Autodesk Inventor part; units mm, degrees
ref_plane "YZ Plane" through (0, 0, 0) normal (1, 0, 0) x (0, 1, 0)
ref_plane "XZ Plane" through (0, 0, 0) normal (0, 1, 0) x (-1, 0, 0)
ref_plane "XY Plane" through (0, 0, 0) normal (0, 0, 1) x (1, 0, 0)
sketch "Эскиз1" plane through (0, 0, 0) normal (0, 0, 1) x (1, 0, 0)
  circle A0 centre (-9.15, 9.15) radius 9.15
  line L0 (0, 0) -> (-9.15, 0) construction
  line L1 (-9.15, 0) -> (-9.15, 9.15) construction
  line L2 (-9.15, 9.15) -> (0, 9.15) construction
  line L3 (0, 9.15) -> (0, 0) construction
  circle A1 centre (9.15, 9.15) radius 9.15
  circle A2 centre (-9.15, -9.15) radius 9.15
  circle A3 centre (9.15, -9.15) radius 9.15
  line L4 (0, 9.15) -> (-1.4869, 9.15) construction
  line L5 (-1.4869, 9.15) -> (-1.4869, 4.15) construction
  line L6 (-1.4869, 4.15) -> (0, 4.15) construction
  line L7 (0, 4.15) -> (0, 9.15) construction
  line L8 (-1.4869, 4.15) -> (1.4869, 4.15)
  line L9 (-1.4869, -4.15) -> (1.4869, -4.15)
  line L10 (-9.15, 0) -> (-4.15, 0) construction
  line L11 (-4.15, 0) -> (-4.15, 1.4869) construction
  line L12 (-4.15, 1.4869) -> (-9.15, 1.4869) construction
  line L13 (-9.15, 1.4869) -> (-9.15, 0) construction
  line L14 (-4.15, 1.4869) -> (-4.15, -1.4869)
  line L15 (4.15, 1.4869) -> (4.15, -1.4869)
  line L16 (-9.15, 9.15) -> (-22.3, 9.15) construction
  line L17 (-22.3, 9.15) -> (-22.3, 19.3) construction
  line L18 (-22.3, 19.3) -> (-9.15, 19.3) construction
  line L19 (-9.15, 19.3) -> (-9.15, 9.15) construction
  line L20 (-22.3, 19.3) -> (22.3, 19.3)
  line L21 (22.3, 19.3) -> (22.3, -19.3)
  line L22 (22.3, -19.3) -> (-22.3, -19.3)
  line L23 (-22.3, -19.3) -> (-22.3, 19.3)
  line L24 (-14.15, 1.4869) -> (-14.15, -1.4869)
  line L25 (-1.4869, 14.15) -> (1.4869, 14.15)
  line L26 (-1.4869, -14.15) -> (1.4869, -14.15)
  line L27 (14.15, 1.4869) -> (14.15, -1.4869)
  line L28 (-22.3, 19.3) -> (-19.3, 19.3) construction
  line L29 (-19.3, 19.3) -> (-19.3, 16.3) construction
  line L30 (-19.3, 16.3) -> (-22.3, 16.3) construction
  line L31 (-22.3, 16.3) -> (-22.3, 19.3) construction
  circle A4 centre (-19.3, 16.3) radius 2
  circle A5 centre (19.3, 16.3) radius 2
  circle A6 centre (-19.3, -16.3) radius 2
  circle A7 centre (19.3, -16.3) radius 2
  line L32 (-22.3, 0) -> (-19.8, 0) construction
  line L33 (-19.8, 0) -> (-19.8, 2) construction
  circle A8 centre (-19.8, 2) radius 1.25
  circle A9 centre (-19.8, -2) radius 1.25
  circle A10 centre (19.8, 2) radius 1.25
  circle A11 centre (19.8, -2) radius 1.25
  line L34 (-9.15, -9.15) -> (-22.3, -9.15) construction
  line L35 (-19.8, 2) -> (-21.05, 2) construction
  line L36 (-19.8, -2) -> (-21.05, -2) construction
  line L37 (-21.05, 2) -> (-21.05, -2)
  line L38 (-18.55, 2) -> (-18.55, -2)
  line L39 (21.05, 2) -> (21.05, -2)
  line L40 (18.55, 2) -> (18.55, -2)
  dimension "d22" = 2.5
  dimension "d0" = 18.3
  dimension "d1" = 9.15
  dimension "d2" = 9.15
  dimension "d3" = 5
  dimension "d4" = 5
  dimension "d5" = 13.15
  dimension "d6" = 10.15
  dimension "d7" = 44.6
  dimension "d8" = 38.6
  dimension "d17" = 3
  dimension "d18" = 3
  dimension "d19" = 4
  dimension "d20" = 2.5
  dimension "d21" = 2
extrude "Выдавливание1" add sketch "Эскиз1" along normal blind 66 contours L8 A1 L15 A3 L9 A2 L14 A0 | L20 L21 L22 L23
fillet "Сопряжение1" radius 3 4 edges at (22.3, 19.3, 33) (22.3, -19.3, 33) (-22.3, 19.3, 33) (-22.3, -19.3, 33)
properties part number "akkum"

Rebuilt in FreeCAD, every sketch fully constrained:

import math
import FreeCAD as App
import Part
import Sketcher

V = App.Vector
Q = App.Units.Quantity


def edges_at(feature, points):
    """Names of the edges that pass closest to the given points."""
    edges = feature.Shape.Edges
    near = lambda p: min(range(len(edges)), key=lambda i: edges[i].distToShape(Part.Vertex(*p))[0])
    return sorted({f"Edge{near(p) + 1}" for p in points})

doc = App.newDocument("Part")
body = doc.addObject("PartDesign::Body", "Body")
body.AllowCompound = True

sketch1 = body.newObject("Sketcher::SketchObject", "Sketch")
sketch1.AttachmentSupport = (doc.getObject("XY_Plane"), [""])
sketch1.MapMode = "FlatFace"
sketch1.addGeometry([
    Part.LineSegment(V(1.4869, 4.15, 0), V(-1.4869, 4.15, 0)),
    Part.ArcOfCircle(Part.Circle(V(-9.15, 9.15, 0), V(0, 0, 1), 9.15), math.radians(-56.876458), math.radians(-33.123542)),
    Part.LineSegment(V(-4.15, 1.4869, 0), V(-4.15, -1.4869, 0)),
    Part.ArcOfCircle(Part.Circle(V(-9.15, -9.15, 0), V(0, 0, 1), 9.15), math.radians(33.123542), math.radians(56.876458)),
    Part.LineSegment(V(-1.4869, -4.15, 0), V(1.4869, -4.15, 0)),
    Part.ArcOfCircle(Part.Circle(V(9.15, -9.15, 0), V(0, 0, 1), 9.15), math.radians(123.123542), math.radians(146.876458)),
    Part.LineSegment(V(4.15, -1.4869, 0), V(4.15, 1.4869, 0)),
    Part.ArcOfCircle(Part.Circle(V(9.15, 9.15, 0), V(0, 0, 1), 9.15), math.radians(-146.876458), math.radians(-123.123542)),
    Part.LineSegment(V(22.3, 19.3, 0), V(-22.3, 19.3, 0)),
    Part.LineSegment(V(-22.3, 19.3, 0), V(-22.3, -19.3, 0)),
    Part.LineSegment(V(-22.3, -19.3, 0), V(22.3, -19.3, 0)),
    Part.LineSegment(V(22.3, -19.3, 0), V(22.3, 19.3, 0)),
    Part.Circle(V(-19.3, -16.3, 0), V(0, 0, 1), 2),
    Part.Circle(V(19.3, -16.3, 0), V(0, 0, 1), 2),
    Part.ArcOfCircle(Part.Circle(V(-19.8, 2, 0), V(0, 0, 1), 1.25), math.radians(0), math.radians(180)),
    Part.LineSegment(V(-18.55, 2, 0), V(-18.55, -2, 0)),
    Part.ArcOfCircle(Part.Circle(V(-19.8, -2, 0), V(0, 0, 1), 1.25), math.radians(180), math.radians(360)),
    Part.LineSegment(V(-21.05, -2, 0), V(-21.05, 2, 0)),
    Part.Circle(V(-19.3, 16.3, 0), V(0, 0, 1), 2),
    Part.ArcOfCircle(Part.Circle(V(-9.15, 9.15, 0), V(0, 0, 1), 9.15), math.radians(33.123542), math.radians(236.876458)),
    Part.LineSegment(V(-1.4869, 14.15, 0), V(1.4869, 14.15, 0)),
    Part.ArcOfCircle(Part.Circle(V(9.15, 9.15, 0), V(0, 0, 1), 9.15), math.radians(-56.876458), math.radians(146.876458)),
    Part.LineSegment(V(14.15, 1.4869, 0), V(14.15, -1.4869, 0)),
    Part.ArcOfCircle(Part.Circle(V(9.15, -9.15, 0), V(0, 0, 1), 9.15), math.radians(-146.876458), math.radians(56.876458)),
    Part.LineSegment(V(1.4869, -14.15, 0), V(-1.4869, -14.15, 0)),
    Part.ArcOfCircle(Part.Circle(V(-9.15, -9.15, 0), V(0, 0, 1), 9.15), math.radians(123.123542), math.radians(326.876458)),
    Part.LineSegment(V(-14.15, -1.4869, 0), V(-14.15, 1.4869, 0)),
    Part.ArcOfCircle(Part.Circle(V(19.8, 2, 0), V(0, 0, 1), 1.25), math.radians(0), math.radians(180)),
    Part.LineSegment(V(21.05, 2, 0), V(21.05, -2, 0)),
    Part.ArcOfCircle(Part.Circle(V(19.8, -2, 0), V(0, 0, 1), 1.25), math.radians(180), math.radians(360)),
    Part.LineSegment(V(18.55, -2, 0), V(18.55, 2, 0)),
    Part.Circle(V(19.3, 16.3, 0), V(0, 0, 1), 2),
], False)
sketch1.addConstraint([
    Sketcher.Constraint("Coincident", 0, 2, 1, 2),
    Sketcher.Constraint("Coincident", 1, 1, 2, 1),
    Sketcher.Constraint("Coincident", 2, 2, 3, 2),
    Sketcher.Constraint("Coincident", 3, 1, 4, 1),
    Sketcher.Constraint("Coincident", 4, 2, 5, 2),
    Sketcher.Constraint("Coincident", 5, 1, 6, 1),
    Sketcher.Constraint("Coincident", 6, 2, 7, 2),
    Sketcher.Constraint("Coincident", 7, 1, 0, 1),
    Sketcher.Constraint("Coincident", 8, 2, 9, 1),
    Sketcher.Constraint("Coincident", 9, 2, 10, 1),
    Sketcher.Constraint("Coincident", 10, 2, 11, 1),
    Sketcher.Constraint("Coincident", 11, 2, 8, 1),
    Sketcher.Constraint("Tangent", 14, 1, 15, 1),
    Sketcher.Constraint("Tangent", 15, 2, 16, 2),
    Sketcher.Constraint("Tangent", 16, 1, 17, 1),
    Sketcher.Constraint("Tangent", 17, 2, 14, 2),
    Sketcher.Constraint("Coincident", 19, 1, 20, 1),
    Sketcher.Constraint("Coincident", 20, 2, 21, 2),
    Sketcher.Constraint("Coincident", 21, 1, 22, 1),
    Sketcher.Constraint("Coincident", 22, 2, 23, 2),
    Sketcher.Constraint("Coincident", 23, 1, 24, 1),
    Sketcher.Constraint("Coincident", 24, 2, 25, 2),
    Sketcher.Constraint("Coincident", 25, 1, 26, 1),
    Sketcher.Constraint("Coincident", 26, 2, 19, 2),
    Sketcher.Constraint("Tangent", 27, 1, 28, 1),
    Sketcher.Constraint("Tangent", 28, 2, 29, 2),
    Sketcher.Constraint("Tangent", 29, 1, 30, 1),
    Sketcher.Constraint("Tangent", 30, 2, 27, 2),
    Sketcher.Constraint("Horizontal", 0),
    Sketcher.Constraint("Vertical", 2),
    Sketcher.Constraint("Horizontal", 4),
    Sketcher.Constraint("Vertical", 6),
    Sketcher.Constraint("Horizontal", 8),
    Sketcher.Constraint("Vertical", 9),
    Sketcher.Constraint("Horizontal", 10),
    Sketcher.Constraint("Vertical", 11),
    Sketcher.Constraint("Vertical", 15),
    Sketcher.Constraint("Vertical", 17),
    Sketcher.Constraint("Horizontal", 20),
    Sketcher.Constraint("Vertical", 22),
    Sketcher.Constraint("Horizontal", 24),
    Sketcher.Constraint("Vertical", 26),
    Sketcher.Constraint("Vertical", 28),
    Sketcher.Constraint("Vertical", 30),
    Sketcher.Constraint("Coincident", 19, 3, 1, 3),
    Sketcher.Constraint("Coincident", 21, 3, 7, 3),
    Sketcher.Constraint("Coincident", 23, 3, 5, 3),
    Sketcher.Constraint("Coincident", 25, 3, 3, 3),
    Sketcher.Constraint("Equal", 1, 3),
    Sketcher.Constraint("Equal", 3, 5),
    Sketcher.Constraint("Equal", 5, 7),
    Sketcher.Constraint("Equal", 12, 13),
    Sketcher.Constraint("Equal", 13, 18),
    Sketcher.Constraint("Equal", 7, 19),
    Sketcher.Constraint("Equal", 19, 21),
    Sketcher.Constraint("Equal", 21, 23),
    Sketcher.Constraint("Equal", 23, 25),
    Sketcher.Constraint("Equal", 16, 27),
    Sketcher.Constraint("Equal", 18, 31),
    Sketcher.Constraint("Symmetric", 1, 3, 5, 3, -1, 1),
    Sketcher.Constraint("Symmetric", 3, 3, 7, 3, -1, 1),
    Sketcher.Constraint("Symmetric", 13, 3, 18, 3, -1, 1),
    Sketcher.Constraint("Symmetric", 16, 3, 27, 3, -1, 1),
    Sketcher.Constraint("Symmetric", 12, 3, 31, 3, -1, 1),
    Sketcher.Constraint("Symmetric", 8, 2, 10, 2, -1, 1),
    Sketcher.Constraint("Symmetric", 3, 3, 5, 3, -2),
    Sketcher.Constraint("Symmetric", 12, 3, 13, 3, -2),
    Sketcher.Constraint("Horizontal", 14, 3, 27, 3),
    Sketcher.Constraint("Horizontal", 16, 3, 29, 3),
    Sketcher.Constraint("Horizontal", 2, 2, 5, 1),
    Sketcher.Constraint("Horizontal", 6, 2, 21, 1),
    Sketcher.Constraint("Horizontal", 22, 2, 25, 1),
    Sketcher.Constraint("Vertical", 0, 2, 3, 1),
    Sketcher.Constraint("Vertical", 3, 1, 19, 1),
    Sketcher.Constraint("Vertical", 20, 2, 23, 1),
    Sketcher.Constraint("Equal", 24, 2),
    Sketcher.Constraint("Diameter", 12, Q("4 mm")),
    Sketcher.Constraint("DistanceY", 15, 2, 15, 1, Q("4 mm")),
    Sketcher.Constraint("Radius", 1, Q("9.15 mm")),
    Sketcher.Constraint("Radius", 14, Q("1.25 mm")),
    Sketcher.Constraint("DistanceX", 8, 2, 8, 1, Q("44.6 mm")),
    Sketcher.Constraint("DistanceY", 9, 2, 9, 1, Q("38.6 mm")),
    Sketcher.Constraint("DistanceY", 0, 2, 1, 3, Q("5 mm")),
    Sketcher.Constraint("DistanceX", 1, 3, 1, 1, Q("5 mm")),
    Sketcher.Constraint("DistanceX", 8, 2, 18, 3, Q("3 mm")),
    Sketcher.Constraint("DistanceY", 18, 3, 8, 2, Q("3 mm")),
    Sketcher.Constraint("DistanceY", 3, 3, 1, 3, Q("18.3 mm")),
    Sketcher.Constraint("DistanceX", 8, 2, 14, 3, Q("2.5 mm")),
])
pad1 = body.newObject("PartDesign::Pad", "Pad")
pad1.Profile = sketch1
pad1.Length = 66
doc.recompute()

fillet = body.newObject("PartDesign::Fillet", "Fillet")
fillet.Base = (pad1, edges_at(pad1, [
    (22.3, 19.3, 33),
    (22.3, -19.3, 33),
    (-22.3, 19.3, 33),
    (-22.3, -19.3, 33),
]))
fillet.Radius = 3

doc.recompute()
